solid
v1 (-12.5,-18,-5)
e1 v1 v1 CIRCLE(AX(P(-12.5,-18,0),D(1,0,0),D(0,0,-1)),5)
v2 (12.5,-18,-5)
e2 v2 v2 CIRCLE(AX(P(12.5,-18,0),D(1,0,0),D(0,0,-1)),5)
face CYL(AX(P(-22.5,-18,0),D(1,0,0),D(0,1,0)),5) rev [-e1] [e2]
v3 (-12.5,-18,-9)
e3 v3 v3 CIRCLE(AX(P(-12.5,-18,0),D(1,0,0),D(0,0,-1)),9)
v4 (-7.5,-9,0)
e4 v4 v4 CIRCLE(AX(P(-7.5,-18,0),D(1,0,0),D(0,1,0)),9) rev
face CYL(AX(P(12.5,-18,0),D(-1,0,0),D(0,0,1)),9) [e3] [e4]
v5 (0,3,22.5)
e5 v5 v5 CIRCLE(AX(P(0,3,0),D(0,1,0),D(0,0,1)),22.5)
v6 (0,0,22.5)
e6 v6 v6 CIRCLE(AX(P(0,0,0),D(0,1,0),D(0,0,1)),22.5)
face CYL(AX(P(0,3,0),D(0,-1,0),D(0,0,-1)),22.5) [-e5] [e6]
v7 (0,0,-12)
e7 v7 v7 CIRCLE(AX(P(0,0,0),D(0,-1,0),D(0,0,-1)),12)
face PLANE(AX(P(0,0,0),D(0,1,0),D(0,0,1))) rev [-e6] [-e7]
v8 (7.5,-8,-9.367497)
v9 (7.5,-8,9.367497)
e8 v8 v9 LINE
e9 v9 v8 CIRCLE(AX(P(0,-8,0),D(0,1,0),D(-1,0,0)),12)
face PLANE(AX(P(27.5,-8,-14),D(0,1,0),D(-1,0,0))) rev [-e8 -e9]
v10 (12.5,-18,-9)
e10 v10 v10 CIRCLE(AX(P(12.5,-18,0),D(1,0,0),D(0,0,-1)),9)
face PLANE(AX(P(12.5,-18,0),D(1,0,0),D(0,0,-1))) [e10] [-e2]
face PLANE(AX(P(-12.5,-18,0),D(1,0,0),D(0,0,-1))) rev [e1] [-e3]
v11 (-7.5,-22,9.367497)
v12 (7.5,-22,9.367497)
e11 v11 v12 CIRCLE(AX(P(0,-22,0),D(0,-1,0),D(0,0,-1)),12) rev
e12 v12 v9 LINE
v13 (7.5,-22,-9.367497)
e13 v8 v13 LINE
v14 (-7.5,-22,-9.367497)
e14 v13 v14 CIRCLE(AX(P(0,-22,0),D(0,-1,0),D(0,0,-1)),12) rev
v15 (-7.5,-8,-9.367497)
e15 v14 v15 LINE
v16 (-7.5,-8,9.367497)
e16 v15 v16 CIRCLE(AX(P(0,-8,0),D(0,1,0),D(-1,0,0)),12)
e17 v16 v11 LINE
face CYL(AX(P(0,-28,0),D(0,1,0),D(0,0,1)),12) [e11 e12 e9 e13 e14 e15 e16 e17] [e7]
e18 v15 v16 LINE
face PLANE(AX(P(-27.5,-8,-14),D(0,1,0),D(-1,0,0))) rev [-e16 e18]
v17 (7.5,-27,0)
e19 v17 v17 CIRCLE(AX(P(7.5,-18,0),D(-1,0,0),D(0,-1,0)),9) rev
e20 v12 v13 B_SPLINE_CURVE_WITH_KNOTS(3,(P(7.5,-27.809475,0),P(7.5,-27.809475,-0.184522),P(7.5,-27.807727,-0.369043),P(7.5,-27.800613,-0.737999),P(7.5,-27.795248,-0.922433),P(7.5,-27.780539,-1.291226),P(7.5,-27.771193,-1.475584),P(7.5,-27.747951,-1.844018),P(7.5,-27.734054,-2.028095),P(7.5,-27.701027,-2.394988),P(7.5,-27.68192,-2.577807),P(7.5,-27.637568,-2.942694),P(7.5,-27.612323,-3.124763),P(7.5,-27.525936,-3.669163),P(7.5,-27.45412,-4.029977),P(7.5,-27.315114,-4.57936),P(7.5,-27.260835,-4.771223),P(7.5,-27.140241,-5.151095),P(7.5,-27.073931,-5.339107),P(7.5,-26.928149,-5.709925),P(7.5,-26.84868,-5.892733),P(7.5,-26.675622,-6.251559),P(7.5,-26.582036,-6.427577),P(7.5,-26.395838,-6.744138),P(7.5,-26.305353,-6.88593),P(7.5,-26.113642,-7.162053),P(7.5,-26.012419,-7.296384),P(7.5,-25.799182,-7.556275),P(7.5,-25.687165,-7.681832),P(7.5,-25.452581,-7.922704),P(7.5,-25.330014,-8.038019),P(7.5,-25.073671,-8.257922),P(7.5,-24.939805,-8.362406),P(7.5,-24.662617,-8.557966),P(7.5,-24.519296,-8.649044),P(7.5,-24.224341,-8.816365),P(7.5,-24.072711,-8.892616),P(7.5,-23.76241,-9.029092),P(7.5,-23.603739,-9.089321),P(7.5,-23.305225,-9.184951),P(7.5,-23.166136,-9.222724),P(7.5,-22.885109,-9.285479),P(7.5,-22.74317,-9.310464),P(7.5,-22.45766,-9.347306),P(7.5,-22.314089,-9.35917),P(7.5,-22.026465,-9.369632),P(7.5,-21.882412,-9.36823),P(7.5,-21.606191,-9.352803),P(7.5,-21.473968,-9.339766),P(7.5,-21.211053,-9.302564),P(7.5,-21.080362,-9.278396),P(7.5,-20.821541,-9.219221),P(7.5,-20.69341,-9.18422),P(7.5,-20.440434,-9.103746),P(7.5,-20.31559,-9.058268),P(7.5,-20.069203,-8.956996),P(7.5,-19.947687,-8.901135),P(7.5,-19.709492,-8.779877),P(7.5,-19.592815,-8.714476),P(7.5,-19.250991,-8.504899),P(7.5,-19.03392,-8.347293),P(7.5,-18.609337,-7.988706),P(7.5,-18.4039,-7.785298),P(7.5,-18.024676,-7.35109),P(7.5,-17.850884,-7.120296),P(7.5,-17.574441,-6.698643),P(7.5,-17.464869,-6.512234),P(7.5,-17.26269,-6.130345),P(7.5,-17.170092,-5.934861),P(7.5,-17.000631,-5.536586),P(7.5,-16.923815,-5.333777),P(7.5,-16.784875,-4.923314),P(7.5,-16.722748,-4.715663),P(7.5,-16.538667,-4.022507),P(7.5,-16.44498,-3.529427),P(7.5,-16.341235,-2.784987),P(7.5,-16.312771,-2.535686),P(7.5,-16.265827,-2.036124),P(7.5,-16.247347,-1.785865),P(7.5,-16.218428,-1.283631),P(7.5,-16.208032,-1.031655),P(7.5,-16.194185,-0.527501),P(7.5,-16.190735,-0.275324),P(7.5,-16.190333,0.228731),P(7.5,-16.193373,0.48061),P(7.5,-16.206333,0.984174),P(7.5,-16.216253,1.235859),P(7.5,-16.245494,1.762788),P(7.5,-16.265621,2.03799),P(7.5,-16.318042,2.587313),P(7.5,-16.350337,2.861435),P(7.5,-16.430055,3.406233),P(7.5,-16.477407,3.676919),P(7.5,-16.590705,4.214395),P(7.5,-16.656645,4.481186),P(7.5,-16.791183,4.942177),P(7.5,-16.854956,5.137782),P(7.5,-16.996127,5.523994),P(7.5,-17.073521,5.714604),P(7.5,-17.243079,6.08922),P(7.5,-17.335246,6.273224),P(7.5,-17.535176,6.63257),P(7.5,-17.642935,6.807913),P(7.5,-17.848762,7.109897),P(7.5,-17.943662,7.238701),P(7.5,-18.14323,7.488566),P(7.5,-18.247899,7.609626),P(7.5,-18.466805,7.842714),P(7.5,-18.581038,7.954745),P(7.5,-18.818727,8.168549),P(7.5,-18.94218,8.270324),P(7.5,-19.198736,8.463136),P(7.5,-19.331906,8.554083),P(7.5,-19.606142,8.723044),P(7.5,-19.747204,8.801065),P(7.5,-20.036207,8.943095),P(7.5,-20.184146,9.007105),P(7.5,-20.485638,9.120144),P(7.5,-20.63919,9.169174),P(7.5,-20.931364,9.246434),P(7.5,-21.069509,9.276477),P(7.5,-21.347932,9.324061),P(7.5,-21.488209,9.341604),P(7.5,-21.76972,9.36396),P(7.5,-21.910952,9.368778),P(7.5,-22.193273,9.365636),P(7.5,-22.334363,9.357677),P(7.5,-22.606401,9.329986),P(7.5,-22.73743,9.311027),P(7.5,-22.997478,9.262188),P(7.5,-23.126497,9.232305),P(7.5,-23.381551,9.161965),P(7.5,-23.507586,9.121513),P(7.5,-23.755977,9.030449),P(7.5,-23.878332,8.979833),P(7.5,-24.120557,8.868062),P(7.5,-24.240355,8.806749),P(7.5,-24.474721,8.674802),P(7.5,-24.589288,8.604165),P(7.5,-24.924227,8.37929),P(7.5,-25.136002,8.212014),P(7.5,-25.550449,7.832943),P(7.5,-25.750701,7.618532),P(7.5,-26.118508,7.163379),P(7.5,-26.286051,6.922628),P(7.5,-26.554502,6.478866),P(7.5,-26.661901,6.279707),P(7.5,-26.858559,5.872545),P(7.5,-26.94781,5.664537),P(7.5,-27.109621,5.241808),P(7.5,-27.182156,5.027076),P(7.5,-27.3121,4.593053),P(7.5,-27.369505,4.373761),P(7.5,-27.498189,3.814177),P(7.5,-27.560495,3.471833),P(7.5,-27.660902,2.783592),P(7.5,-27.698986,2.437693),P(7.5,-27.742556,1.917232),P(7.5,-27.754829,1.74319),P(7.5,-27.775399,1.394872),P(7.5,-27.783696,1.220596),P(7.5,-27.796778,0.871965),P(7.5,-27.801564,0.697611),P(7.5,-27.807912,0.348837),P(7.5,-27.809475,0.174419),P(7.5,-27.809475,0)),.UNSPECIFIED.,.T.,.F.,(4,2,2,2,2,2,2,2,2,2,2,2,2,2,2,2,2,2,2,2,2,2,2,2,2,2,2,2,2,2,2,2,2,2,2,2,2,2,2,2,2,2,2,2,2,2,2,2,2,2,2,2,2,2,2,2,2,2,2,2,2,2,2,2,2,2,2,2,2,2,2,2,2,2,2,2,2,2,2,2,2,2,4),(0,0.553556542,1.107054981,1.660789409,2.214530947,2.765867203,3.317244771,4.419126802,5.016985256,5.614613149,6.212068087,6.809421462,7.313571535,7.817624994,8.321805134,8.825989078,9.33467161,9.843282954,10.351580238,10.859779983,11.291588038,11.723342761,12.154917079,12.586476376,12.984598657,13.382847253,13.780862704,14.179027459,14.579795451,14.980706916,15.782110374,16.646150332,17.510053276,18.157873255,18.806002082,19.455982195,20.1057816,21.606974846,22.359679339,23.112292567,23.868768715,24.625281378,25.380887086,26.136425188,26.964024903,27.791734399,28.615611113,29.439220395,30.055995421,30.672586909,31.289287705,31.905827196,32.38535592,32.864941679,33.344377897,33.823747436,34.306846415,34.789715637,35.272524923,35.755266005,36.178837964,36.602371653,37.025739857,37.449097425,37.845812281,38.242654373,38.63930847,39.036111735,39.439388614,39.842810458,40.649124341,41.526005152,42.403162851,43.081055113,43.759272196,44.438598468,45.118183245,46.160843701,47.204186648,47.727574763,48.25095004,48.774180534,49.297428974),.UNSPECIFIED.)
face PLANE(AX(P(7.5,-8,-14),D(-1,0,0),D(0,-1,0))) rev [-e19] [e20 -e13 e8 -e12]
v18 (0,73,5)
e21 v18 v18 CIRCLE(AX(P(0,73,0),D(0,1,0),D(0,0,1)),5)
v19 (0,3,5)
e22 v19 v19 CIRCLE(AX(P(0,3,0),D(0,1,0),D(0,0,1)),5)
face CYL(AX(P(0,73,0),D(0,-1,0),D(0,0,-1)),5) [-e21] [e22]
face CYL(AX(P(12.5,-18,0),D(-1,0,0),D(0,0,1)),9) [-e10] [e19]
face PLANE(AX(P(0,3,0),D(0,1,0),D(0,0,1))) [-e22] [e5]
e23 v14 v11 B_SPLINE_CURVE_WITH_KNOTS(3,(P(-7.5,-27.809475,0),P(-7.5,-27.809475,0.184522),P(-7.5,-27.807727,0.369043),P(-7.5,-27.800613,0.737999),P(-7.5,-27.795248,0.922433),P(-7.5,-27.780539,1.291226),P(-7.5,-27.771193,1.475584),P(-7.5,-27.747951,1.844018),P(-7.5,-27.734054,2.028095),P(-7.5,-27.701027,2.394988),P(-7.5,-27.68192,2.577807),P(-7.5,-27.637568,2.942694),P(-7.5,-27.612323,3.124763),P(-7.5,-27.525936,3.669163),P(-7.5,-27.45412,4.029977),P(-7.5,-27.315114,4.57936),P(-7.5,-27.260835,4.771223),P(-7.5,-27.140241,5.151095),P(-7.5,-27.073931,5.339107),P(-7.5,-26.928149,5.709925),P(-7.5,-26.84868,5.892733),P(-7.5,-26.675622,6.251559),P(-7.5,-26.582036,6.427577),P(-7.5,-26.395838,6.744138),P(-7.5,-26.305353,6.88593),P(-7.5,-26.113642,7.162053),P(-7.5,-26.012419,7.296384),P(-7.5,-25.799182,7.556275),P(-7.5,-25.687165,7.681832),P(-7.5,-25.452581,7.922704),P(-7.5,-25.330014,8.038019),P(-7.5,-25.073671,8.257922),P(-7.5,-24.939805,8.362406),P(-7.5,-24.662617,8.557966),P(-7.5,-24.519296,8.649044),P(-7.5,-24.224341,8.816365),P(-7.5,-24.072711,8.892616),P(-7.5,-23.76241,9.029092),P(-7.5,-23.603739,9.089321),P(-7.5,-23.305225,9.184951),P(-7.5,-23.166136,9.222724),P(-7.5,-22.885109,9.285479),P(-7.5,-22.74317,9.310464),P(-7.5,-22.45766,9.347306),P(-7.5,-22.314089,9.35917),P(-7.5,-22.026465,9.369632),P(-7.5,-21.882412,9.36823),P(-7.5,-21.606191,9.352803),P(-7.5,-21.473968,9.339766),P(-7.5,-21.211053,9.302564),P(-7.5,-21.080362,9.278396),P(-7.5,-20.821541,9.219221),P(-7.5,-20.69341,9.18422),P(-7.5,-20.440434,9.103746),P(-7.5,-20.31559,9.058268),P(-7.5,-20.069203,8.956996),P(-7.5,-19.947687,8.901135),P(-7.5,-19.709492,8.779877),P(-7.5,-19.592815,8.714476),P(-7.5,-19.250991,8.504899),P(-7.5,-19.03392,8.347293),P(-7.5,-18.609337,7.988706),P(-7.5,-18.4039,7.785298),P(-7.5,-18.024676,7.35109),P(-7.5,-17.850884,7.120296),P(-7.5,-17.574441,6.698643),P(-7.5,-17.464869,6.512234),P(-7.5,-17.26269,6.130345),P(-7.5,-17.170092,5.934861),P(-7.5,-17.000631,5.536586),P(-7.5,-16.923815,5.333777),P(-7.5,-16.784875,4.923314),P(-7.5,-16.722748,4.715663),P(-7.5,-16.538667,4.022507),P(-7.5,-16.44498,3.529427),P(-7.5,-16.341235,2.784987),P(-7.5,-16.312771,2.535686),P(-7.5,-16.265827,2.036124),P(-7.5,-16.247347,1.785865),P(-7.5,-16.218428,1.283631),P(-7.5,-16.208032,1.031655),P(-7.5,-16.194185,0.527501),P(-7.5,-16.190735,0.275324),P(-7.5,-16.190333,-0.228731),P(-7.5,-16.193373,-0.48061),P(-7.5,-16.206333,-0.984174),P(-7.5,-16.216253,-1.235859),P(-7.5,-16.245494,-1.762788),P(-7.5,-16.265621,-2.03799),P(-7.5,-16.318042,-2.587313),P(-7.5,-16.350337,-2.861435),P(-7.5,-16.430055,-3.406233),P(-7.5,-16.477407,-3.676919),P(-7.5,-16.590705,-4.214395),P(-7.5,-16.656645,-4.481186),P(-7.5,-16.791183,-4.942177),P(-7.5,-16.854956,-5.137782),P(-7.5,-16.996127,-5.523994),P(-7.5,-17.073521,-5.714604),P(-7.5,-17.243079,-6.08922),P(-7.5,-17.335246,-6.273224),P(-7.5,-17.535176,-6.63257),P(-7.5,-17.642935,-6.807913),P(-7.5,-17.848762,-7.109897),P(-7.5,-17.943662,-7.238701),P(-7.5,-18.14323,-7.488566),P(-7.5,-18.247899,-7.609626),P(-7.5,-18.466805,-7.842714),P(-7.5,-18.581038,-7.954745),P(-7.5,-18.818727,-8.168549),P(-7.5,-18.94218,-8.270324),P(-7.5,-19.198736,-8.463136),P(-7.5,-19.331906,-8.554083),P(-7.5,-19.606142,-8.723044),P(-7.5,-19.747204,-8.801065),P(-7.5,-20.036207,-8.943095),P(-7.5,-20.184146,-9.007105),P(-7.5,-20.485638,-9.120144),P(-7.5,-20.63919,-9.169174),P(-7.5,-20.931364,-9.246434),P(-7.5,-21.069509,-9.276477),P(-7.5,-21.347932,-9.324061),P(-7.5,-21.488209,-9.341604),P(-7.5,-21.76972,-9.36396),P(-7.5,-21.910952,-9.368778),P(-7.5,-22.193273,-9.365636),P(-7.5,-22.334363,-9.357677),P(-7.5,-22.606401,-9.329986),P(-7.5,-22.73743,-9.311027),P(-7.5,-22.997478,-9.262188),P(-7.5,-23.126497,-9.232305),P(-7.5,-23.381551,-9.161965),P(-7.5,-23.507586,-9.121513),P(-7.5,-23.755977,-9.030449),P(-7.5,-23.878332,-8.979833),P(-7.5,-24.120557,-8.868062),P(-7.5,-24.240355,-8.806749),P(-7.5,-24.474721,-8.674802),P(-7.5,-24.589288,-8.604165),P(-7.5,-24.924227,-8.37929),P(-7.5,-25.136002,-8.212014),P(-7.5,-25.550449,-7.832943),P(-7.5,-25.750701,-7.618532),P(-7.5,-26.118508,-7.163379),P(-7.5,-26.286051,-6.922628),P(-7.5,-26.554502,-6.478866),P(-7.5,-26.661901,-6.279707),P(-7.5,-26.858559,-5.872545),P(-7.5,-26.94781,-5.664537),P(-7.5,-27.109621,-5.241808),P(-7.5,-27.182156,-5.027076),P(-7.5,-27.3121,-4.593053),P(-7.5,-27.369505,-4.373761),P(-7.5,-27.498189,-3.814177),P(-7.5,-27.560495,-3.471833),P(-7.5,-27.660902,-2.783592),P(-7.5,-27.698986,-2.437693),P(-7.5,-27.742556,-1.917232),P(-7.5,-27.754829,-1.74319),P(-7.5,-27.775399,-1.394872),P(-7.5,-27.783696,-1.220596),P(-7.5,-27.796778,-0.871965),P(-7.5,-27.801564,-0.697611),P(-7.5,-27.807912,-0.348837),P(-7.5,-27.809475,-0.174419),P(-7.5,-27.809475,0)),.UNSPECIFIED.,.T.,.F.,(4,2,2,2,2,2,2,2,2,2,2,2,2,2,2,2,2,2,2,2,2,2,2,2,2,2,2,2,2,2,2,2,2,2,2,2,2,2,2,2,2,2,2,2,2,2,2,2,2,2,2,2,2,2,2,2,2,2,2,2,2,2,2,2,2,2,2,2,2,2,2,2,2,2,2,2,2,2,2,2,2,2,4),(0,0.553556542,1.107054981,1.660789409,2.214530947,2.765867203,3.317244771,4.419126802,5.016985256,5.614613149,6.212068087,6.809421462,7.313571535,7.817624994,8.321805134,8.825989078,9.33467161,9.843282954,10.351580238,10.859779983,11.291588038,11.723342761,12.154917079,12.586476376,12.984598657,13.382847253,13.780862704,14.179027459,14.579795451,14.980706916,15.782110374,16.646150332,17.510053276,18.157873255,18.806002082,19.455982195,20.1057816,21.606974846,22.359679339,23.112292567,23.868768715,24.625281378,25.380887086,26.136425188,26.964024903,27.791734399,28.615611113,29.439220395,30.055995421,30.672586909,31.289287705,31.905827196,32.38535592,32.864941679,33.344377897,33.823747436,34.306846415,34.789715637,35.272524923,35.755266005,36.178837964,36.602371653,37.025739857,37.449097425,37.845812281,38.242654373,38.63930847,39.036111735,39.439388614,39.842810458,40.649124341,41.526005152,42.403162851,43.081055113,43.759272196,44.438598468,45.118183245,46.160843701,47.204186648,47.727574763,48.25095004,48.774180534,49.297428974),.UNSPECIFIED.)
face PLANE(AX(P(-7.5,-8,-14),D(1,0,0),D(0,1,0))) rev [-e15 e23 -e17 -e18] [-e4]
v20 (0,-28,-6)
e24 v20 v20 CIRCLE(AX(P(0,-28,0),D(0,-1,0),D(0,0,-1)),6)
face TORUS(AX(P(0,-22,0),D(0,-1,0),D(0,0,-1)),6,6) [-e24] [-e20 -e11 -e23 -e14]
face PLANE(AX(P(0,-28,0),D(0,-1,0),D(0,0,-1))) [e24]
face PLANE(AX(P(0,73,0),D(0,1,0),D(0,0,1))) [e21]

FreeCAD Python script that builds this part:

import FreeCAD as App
import Part
import Sketcher
from FreeCAD import Vector


def edges_at(feature, points):
    """Names of the edges that pass closest to the given points."""
    edges = feature.Shape.Edges
    near = lambda p: min(range(len(edges)), key=lambda i: edges[i].distToShape(Part.Vertex(*p))[0])
    return sorted({f"Edge{near(p) + 1}" for p in points})


def add_polygon(sketch, points):
    """Adds a closed chain of lines whose ends are joined by coincident constraints."""
    first, n = sketch.GeometryCount, len(points)
    for a, b in zip(points, points[1:] + points[:1]):
        sketch.addGeometry(Part.LineSegment(App.Vector(*a, 0), App.Vector(*b, 0)), False)
    for i in range(n):
        sketch.addConstraint(Sketcher.Constraint("Coincident", first + i, 2, first + (i + 1) % n, 1))

doc = App.newDocument("Part")
body = doc.addObject("PartDesign::Body", "Body")

sketch1 = body.newObject("Sketcher::SketchObject", "Sketch")
sketch1.AttachmentSupport = (doc.getObject("XZ_Plane"), [""])
sketch1.MapMode = "FlatFace"
sketch1.addGeometry(Part.Circle(Vector(0, 0, 0), Vector(0, 0, 1), 22.5), False)
sketch1.addConstraint(Sketcher.Constraint("Coincident", 0, 3, -1, 1))
sketch1.addConstraint(Sketcher.Constraint("Diameter", 0, 45.0))
pad1 = body.newObject("PartDesign::Pad", "Pad")
pad1.Profile = sketch1
pad1.Length = 3
pad1.Reversed = True

sketch2 = body.newObject("Sketcher::SketchObject", "Sketch001")
sketch2.AttachmentSupport = (doc.getObject("XZ_Plane"), [""])
sketch2.MapMode = "FlatFace"
sketch2.AttachmentOffset = App.Placement(Vector(0, 0, -3), App.Rotation())
sketch2.addGeometry(Part.Circle(Vector(0, 0, 0), Vector(0, 0, 1), 5), False)
sketch2.addConstraint(Sketcher.Constraint("Coincident", 0, 3, -1, 1))
sketch2.addConstraint(Sketcher.Constraint("Diameter", 0, 10.0))
pad2 = body.newObject("PartDesign::Pad", "Pad001")
pad2.Profile = sketch2
pad2.Length = 70
pad2.Reversed = True

sketch3 = body.newObject("Sketcher::SketchObject", "Sketch002")
sketch3.AttachmentSupport = (doc.getObject("XZ_Plane"), [""])
sketch3.MapMode = "FlatFace"
sketch3.addGeometry(Part.Circle(Vector(0, 0, 0), Vector(0, 0, 1), 12), False)
sketch3.addConstraint(Sketcher.Constraint("Coincident", 0, 3, -1, 1))
sketch3.addConstraint(Sketcher.Constraint("Diameter", 0, 24.0))
pad3 = body.newObject("PartDesign::Pad", "Pad002")
pad3.Profile = sketch3
pad3.Length = 28
doc.recompute()

fillet = body.newObject("PartDesign::Fillet", "Fillet")
fillet.Base = (pad3, edges_at(pad3, [(-12, -28, 0)]))
fillet.Radius = 6

sketch4 = body.newObject("Sketcher::SketchObject", "Sketch003")
sketch4.AttachmentSupport = (doc.getObject("XY_Plane"), [""])
sketch4.MapMode = "FlatFace"
add_polygon(sketch4, [(7.5, -8), (7.5, -28), (27.5, -28), (27.5, -8)])
add_polygon(sketch4, [(-27.5, -8), (-27.5, -28), (-7.5, -28), (-7.5, -8)])
sketch4.addConstraint(Sketcher.Constraint("Vertical", 0))
sketch4.addConstraint(Sketcher.Constraint("Horizontal", 1))
sketch4.addConstraint(Sketcher.Constraint("Vertical", 2))
sketch4.addConstraint(Sketcher.Constraint("Horizontal", 3))
sketch4.addConstraint(Sketcher.Constraint("Vertical", 4))
sketch4.addConstraint(Sketcher.Constraint("Horizontal", 5))
sketch4.addConstraint(Sketcher.Constraint("Vertical", 6))
sketch4.addConstraint(Sketcher.Constraint("Horizontal", 7))
sketch4.addConstraint(Sketcher.Constraint("Symmetric", 1, 2, 4, 2, -2))
sketch4.addConstraint(Sketcher.Constraint("Symmetric", 3, 2, 6, 2, -2))
sketch4.addConstraint(Sketcher.Constraint("Equal", 7, 0))
sketch4.addConstraint(Sketcher.Constraint("DistanceX", 1, 1, 1, 2, 20.0))
sketch4.addConstraint(Sketcher.Constraint("DistanceY", 0, 2, -1, 1, 28.0))
sketch4.addConstraint(Sketcher.Constraint("DistanceX", 4, 2, 0, 2, 35.0))
pocket1 = body.newObject("PartDesign::Pocket", "Pocket")
pocket1.Profile = sketch4
pocket1.Length = 28
pocket1.Midplane = True

sketch5 = body.newObject("Sketcher::SketchObject", "Sketch004")
sketch5.AttachmentSupport = (doc.getObject("YZ_Plane"), [""])
sketch5.MapMode = "FlatFace"
sketch5.AttachmentOffset = App.Placement(Vector(0, 0, 7.5), App.Rotation())
sketch5.addGeometry(Part.Circle(Vector(-18, 0, 0), Vector(0, 0, 1), 5), False)
sketch5.addConstraint(Sketcher.Constraint("PointOnObject", 0, 3, -1))
sketch5.addConstraint(Sketcher.Constraint("Diameter", 0, 10.0))
sketch5.addConstraint(Sketcher.Constraint("DistanceX", 0, 3, -1, 1, 18.0))
pocket2 = body.newObject("PartDesign::Pocket", "Pocket001")
pocket2.Profile = sketch5
pocket2.Type = "ThroughAll"

sketch6 = body.newObject("Sketcher::SketchObject", "Sketch005")
sketch6.AttachmentSupport = (doc.getObject("YZ_Plane"), [""])
sketch6.MapMode = "FlatFace"
sketch6.addGeometry(Part.Circle(Vector(-18, 0, 0), Vector(0, 0, 1), 9), False)
sketch6.addGeometry(Part.Circle(Vector(-18, 0, 0), Vector(0, 0, 1), 5), False)
sketch6.addConstraint(Sketcher.Constraint("Coincident", 1, 3, 0, 3))
sketch6.addConstraint(Sketcher.Constraint("PointOnObject", 0, 3, -1))
sketch6.addConstraint(Sketcher.Constraint("Diameter", 0, 18.0))
sketch6.addConstraint(Sketcher.Constraint("Diameter", 1, 10.0))
sketch6.addConstraint(Sketcher.Constraint("DistanceX", 0, 3, -1, 1, 18.0))
pad4 = body.newObject("PartDesign::Pad", "Pad003")
pad4.Profile = sketch6
pad4.Length = 25
pad4.Midplane = True

doc.recompute()
